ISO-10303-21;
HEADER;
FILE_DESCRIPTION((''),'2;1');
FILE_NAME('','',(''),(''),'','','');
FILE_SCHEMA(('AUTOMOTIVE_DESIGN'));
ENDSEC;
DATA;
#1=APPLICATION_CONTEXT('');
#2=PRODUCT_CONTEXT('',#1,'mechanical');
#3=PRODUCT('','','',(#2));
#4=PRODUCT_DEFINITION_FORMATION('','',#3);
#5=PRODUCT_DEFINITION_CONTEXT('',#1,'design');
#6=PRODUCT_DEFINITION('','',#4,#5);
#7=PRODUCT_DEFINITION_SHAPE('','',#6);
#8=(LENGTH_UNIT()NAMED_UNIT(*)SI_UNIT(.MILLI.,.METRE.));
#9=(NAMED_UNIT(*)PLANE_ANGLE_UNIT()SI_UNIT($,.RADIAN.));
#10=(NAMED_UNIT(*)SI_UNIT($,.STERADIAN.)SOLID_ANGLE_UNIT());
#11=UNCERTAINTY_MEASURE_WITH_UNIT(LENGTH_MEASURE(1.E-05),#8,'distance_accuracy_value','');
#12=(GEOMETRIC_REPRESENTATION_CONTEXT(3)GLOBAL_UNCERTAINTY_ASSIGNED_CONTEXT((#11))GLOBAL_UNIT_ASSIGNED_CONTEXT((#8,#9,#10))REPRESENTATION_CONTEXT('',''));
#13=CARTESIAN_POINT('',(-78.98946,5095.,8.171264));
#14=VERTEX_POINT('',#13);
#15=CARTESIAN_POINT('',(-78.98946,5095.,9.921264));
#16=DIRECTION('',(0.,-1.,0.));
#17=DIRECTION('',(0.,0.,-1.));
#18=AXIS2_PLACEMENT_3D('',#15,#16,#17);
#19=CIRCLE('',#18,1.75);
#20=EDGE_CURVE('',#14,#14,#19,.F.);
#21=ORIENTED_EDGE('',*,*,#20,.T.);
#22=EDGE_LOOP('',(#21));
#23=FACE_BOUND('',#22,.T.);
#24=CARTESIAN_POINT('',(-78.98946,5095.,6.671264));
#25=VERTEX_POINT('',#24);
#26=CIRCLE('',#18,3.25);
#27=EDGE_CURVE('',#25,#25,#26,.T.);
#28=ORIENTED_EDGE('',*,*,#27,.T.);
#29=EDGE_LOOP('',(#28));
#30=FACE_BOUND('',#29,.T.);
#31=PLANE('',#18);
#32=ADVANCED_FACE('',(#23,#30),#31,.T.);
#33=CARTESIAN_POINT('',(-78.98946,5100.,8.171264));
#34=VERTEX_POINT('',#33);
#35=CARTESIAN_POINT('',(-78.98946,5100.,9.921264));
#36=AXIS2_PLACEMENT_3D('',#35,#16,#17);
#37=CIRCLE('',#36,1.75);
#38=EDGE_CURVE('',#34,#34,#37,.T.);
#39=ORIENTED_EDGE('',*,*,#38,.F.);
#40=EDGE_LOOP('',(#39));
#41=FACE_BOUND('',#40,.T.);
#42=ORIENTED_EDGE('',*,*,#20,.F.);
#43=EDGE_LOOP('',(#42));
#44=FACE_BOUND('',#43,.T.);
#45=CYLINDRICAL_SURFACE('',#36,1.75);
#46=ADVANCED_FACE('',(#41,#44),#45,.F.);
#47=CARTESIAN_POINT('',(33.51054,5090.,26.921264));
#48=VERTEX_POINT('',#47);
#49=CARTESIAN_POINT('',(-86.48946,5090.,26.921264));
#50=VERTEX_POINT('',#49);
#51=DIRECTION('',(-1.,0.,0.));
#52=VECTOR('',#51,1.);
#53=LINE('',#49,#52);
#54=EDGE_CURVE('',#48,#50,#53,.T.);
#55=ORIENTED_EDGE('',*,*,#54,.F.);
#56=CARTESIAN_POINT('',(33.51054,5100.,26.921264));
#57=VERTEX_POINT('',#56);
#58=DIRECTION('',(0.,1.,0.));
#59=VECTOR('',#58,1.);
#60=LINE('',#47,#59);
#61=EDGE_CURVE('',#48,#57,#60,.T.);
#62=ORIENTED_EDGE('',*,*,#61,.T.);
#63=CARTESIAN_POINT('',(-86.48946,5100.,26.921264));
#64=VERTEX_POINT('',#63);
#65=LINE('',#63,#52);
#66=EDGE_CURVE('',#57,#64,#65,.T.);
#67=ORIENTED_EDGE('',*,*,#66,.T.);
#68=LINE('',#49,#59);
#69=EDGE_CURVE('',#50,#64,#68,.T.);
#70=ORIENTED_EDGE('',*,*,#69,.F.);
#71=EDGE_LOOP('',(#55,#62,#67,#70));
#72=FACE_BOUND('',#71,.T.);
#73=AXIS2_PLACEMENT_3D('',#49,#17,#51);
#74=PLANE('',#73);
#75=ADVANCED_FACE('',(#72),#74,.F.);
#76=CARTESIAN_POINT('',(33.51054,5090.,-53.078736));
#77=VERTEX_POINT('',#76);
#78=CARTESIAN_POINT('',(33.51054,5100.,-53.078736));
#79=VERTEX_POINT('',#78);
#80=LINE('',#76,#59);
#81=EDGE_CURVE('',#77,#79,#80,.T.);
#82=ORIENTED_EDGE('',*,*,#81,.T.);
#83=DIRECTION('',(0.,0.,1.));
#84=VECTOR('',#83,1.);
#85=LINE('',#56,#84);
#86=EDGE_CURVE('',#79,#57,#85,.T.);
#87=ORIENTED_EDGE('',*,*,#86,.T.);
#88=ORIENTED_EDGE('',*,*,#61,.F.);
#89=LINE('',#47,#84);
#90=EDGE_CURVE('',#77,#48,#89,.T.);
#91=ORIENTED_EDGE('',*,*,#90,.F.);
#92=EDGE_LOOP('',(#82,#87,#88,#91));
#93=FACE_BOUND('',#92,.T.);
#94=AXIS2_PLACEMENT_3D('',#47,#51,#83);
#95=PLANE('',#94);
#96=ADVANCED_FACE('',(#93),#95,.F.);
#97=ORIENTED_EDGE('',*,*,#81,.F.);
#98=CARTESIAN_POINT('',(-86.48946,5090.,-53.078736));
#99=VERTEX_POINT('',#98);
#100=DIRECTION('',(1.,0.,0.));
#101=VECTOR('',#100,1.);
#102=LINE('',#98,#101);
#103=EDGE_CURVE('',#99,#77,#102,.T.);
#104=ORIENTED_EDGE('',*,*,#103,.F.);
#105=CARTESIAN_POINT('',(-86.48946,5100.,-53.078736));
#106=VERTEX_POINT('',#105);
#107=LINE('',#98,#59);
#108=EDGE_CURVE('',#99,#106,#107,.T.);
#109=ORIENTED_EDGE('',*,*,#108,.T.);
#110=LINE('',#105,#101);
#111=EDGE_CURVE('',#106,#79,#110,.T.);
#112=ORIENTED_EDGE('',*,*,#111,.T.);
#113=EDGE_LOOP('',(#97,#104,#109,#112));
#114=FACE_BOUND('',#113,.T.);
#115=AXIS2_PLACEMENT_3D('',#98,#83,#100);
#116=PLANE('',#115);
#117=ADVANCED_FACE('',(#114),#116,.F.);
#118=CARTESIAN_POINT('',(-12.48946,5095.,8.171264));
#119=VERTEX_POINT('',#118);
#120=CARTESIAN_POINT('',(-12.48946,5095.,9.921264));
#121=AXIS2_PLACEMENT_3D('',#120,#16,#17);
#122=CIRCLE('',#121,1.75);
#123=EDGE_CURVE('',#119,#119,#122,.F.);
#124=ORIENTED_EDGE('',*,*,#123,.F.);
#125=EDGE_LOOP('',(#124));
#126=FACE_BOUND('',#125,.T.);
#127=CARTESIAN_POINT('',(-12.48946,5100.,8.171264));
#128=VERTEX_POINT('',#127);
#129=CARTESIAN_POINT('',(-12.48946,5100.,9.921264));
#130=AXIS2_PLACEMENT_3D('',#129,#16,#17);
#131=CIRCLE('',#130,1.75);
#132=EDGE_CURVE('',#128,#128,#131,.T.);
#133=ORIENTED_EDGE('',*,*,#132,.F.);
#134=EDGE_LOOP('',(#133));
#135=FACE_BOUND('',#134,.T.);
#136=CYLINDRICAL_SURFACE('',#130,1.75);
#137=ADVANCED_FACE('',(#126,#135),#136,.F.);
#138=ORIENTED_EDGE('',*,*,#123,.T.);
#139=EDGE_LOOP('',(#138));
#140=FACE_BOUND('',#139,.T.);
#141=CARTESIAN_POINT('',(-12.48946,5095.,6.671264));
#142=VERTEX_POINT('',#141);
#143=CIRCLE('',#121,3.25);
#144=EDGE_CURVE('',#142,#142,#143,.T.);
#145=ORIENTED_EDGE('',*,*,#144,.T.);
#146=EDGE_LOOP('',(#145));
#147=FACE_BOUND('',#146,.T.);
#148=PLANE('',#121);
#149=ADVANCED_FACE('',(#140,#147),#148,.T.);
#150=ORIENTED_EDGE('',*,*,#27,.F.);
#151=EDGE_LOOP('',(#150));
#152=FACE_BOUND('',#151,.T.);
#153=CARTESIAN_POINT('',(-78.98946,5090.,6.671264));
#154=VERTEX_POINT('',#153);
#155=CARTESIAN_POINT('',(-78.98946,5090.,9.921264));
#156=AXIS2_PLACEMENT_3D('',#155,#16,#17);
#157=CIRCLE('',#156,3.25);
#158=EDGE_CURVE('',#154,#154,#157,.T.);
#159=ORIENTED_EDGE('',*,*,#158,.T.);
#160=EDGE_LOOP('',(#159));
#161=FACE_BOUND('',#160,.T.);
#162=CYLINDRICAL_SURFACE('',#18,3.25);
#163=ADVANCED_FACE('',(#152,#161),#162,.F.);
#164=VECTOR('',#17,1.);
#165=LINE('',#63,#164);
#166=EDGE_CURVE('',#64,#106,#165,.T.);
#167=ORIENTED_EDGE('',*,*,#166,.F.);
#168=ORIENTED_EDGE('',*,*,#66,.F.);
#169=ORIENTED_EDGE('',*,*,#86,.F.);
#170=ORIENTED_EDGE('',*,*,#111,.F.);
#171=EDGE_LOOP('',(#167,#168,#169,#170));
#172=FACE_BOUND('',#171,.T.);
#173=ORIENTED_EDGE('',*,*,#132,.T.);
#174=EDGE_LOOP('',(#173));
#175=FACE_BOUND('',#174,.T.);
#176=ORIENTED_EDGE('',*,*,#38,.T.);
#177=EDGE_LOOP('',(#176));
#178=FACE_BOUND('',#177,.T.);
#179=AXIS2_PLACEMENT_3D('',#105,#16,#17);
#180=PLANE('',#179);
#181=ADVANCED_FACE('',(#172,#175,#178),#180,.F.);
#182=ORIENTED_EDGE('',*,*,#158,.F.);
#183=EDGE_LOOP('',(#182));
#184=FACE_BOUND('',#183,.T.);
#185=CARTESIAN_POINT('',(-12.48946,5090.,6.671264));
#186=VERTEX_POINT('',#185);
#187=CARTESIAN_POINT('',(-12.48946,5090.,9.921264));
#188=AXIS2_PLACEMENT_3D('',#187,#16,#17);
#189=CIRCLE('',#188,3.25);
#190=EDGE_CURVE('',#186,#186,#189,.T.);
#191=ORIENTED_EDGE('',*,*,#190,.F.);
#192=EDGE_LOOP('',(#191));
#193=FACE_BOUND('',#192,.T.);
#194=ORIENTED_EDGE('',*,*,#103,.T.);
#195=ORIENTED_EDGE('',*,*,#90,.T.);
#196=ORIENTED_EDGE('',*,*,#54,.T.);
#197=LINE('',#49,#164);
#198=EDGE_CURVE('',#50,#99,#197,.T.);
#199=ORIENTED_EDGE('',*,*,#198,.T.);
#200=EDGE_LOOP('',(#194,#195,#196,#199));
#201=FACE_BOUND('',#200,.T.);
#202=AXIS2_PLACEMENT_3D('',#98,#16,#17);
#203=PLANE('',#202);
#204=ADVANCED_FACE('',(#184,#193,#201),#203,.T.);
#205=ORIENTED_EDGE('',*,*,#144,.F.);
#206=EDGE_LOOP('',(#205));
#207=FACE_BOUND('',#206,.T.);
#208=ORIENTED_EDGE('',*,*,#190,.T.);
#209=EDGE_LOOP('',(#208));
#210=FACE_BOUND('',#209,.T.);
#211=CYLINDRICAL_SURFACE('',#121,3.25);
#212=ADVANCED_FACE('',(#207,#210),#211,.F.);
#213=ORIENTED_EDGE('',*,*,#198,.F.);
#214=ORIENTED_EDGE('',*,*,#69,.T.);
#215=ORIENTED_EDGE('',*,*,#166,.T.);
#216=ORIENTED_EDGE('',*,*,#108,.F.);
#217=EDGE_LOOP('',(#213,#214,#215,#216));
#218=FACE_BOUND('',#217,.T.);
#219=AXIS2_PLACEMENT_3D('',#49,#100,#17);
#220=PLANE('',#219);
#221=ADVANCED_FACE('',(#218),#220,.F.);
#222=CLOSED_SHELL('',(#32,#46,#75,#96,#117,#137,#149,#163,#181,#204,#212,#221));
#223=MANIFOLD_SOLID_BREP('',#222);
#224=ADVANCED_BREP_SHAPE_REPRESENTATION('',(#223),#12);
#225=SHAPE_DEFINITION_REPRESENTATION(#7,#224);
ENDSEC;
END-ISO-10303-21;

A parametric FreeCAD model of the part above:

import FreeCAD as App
import Part
import Sketcher
from FreeCAD import Vector
Q = App.Units.Quantity

doc = App.newDocument("Part")
body = doc.addObject("PartDesign::Body", "Body")

sketch1 = body.newObject("Sketcher::SketchObject", "Sketch")
sketch1.AttachmentSupport = (doc.getObject("XZ_Plane"), [""])
sketch1.MapMode = "FlatFace"
sketch1.AttachmentOffset = App.Placement(Vector(0, 0, -5100), App.Rotation())
sketch1.addGeometry([
    Part.LineSegment(Vector(-86.48946, 26.921264, 0), Vector(-86.48946, -53.078736, 0)),
    Part.LineSegment(Vector(-86.48946, -53.078736, 0), Vector(33.51054, -53.078736, 0)),
    Part.LineSegment(Vector(33.51054, -53.078736, 0), Vector(33.51054, 26.921264, 0)),
    Part.LineSegment(Vector(33.51054, 26.921264, 0), Vector(-86.48946, 26.921264, 0)),
], False)
sketch1.addConstraint([
    Sketcher.Constraint("Coincident", 0, 2, 1, 1),
    Sketcher.Constraint("Coincident", 1, 2, 2, 1),
    Sketcher.Constraint("Coincident", 2, 2, 3, 1),
    Sketcher.Constraint("Coincident", 3, 2, 0, 1),
    Sketcher.Constraint("Vertical", 0),
    Sketcher.Constraint("Horizontal", 1),
    Sketcher.Constraint("Vertical", 2),
    Sketcher.Constraint("Horizontal", 3),
    Sketcher.Constraint("DistanceX", 1, 1, 1, 2, Q("120 mm")),
    Sketcher.Constraint("DistanceY", 0, 2, 0, 1, Q("80 mm")),
    Sketcher.Constraint("DistanceX", 0, 2, -1, 1, Q("86.48946 mm")),
    Sketcher.Constraint("DistanceY", 0, 2, -1, 1, Q("53.078736 mm")),
])
pad1 = body.newObject("PartDesign::Pad", "Pad")
pad1.Profile = sketch1
pad1.Length = 10

sketch2 = body.newObject("Sketcher::SketchObject", "Sketch001")
sketch2.AttachmentSupport = (doc.getObject("XZ_Plane"), [""])
sketch2.MapMode = "FlatFace"
sketch2.AttachmentOffset = App.Placement(Vector(0, 0, -5090), App.Rotation())
sketch2.addGeometry([
    Part.Circle(Vector(-78.98946, 9.921264, 0), Vector(0, 0, 1), 1.75),
    Part.Circle(Vector(-12.48946, 9.921264, 0), Vector(0, 0, 1), 1.75),
], False)
sketch2.addConstraint([
    Sketcher.Constraint("Equal", 0, 1),
    Sketcher.Constraint("Horizontal", 0, 3, 1, 3),
    Sketcher.Constraint("Diameter", 0, Q("3.5 mm")),
    Sketcher.Constraint("DistanceX", 0, 3, 1, 3, Q("66.5 mm")),
    Sketcher.Constraint("DistanceX", 0, 3, -1, 1, Q("78.98946 mm")),
    Sketcher.Constraint("DistanceY", -1, 1, 0, 3, Q("9.921264 mm")),
])
pocket1 = body.newObject("PartDesign::Pocket", "Pocket")
pocket1.Profile = sketch2
pocket1.Type = "ThroughAll"

sketch3 = body.newObject("Sketcher::SketchObject", "Sketch002")
sketch3.AttachmentSupport = (doc.getObject("XZ_Plane"), [""])
sketch3.MapMode = "FlatFace"
sketch3.AttachmentOffset = App.Placement(Vector(0, 0, -5090), App.Rotation())
sketch3.addGeometry([
    Part.Circle(Vector(-78.98946, 9.921264, 0), Vector(0, 0, 1), 3.25),
    Part.Circle(Vector(-12.48946, 9.921264, 0), Vector(0, 0, 1), 3.25),
], False)
sketch3.addConstraint([
    Sketcher.Constraint("Equal", 0, 1),
    Sketcher.Constraint("Horizontal", 0, 3, 1, 3),
    Sketcher.Constraint("Diameter", 0, Q("6.5 mm")),
    Sketcher.Constraint("DistanceX", 0, 3, 1, 3, Q("66.5 mm")),
    Sketcher.Constraint("DistanceX", 0, 3, -1, 1, Q("78.98946 mm")),
    Sketcher.Constraint("DistanceY", -1, 1, 0, 3, Q("9.921264 mm")),
])
pocket2 = body.newObject("PartDesign::Pocket", "Pocket001")
pocket2.Profile = sketch3
pocket2.Length = 5

doc.recompute()
